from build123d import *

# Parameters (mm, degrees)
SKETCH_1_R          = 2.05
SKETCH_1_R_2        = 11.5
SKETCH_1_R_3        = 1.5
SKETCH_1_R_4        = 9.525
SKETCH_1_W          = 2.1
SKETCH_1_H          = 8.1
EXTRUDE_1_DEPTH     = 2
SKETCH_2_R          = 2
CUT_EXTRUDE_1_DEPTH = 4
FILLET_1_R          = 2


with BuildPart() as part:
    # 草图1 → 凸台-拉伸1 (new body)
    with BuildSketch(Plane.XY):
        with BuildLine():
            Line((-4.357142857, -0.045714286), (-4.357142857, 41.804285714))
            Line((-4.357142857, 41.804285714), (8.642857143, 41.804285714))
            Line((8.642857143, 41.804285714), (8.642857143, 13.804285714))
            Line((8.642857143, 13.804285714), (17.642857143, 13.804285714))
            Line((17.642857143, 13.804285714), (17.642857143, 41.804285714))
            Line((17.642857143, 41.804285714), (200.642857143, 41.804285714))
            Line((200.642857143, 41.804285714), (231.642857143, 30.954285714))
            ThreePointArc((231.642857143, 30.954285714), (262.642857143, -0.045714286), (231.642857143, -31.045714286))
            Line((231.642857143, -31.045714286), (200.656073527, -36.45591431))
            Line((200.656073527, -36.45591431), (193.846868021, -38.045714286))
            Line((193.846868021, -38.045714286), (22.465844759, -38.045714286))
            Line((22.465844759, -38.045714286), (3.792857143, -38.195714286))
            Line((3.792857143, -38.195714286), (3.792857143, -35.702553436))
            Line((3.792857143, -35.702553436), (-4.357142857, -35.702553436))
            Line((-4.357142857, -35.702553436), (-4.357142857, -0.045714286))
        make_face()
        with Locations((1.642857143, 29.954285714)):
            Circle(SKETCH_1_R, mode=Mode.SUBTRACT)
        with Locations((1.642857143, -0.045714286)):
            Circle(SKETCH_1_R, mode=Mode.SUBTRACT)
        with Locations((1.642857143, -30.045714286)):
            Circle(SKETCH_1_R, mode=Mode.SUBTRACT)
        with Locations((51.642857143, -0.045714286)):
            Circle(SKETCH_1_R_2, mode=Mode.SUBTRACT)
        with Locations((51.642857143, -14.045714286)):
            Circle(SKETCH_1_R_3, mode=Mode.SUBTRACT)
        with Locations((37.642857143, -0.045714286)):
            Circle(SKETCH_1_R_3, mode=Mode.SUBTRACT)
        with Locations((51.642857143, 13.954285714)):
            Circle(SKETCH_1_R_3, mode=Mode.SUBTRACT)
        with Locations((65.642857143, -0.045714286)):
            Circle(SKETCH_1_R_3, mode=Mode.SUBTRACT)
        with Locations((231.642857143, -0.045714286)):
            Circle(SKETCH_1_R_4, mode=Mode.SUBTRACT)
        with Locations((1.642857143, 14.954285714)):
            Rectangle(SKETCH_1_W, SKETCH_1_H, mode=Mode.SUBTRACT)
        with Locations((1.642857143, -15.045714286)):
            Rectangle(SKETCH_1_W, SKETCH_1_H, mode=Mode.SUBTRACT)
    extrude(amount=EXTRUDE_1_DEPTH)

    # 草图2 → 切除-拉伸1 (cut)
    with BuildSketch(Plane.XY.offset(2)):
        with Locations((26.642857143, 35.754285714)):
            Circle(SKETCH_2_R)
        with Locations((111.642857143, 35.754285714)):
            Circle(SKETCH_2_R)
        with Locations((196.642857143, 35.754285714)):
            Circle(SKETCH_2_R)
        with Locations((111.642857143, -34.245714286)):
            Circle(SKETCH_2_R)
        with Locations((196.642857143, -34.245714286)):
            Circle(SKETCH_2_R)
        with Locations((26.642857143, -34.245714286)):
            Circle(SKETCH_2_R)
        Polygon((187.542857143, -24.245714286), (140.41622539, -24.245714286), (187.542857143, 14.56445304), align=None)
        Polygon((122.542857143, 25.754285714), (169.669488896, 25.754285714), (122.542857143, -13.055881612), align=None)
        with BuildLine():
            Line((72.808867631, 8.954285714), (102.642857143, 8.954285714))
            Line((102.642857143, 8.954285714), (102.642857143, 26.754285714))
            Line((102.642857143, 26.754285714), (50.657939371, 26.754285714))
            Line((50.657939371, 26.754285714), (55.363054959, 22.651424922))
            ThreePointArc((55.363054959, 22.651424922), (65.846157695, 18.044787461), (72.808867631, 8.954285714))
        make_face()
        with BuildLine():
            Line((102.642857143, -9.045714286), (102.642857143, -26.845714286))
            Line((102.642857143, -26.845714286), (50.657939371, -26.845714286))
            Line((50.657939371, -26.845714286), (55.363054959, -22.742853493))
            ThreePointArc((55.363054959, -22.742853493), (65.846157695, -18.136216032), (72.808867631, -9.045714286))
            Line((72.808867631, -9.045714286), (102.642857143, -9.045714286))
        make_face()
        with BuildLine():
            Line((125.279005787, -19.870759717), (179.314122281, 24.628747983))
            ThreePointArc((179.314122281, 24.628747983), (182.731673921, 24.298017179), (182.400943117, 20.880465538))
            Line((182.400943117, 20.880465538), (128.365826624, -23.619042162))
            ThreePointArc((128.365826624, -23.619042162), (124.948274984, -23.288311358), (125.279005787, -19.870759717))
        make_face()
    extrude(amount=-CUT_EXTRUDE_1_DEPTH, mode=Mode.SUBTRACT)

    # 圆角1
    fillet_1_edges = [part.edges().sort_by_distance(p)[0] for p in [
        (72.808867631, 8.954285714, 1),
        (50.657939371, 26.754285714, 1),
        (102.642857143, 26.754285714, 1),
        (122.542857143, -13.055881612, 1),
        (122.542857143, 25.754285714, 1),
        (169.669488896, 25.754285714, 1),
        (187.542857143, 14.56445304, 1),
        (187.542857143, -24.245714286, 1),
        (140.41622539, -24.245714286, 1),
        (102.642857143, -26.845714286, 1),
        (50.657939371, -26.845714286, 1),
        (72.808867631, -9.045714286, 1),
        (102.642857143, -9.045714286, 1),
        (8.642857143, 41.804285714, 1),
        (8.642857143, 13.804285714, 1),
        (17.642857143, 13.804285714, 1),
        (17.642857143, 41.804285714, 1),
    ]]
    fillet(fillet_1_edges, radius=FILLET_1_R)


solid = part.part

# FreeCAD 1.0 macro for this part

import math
import FreeCAD as App
import Part
import Sketcher
from FreeCAD import Vector


def edges_at(feature, points):
    """Names of the edges that pass closest to the given points."""
    edges = feature.Shape.Edges
    near = lambda p: min(range(len(edges)), key=lambda i: edges[i].distToShape(Part.Vertex(*p))[0])
    return sorted({f"Edge{near(p) + 1}" for p in points})


def add_polygon(sketch, points):
    """Adds a closed chain of lines whose ends are joined by coincident constraints."""
    first, n = sketch.GeometryCount, len(points)
    for a, b in zip(points, points[1:] + points[:1]):
        sketch.addGeometry(Part.LineSegment(App.Vector(*a, 0), App.Vector(*b, 0)), False)
    for i in range(n):
        sketch.addConstraint(Sketcher.Constraint("Coincident", first + i, 2, first + (i + 1) % n, 1))

doc = App.newDocument("Part")
body = doc.addObject("PartDesign::Body", "Body")

# Sketch on XY plane
sketch1 = doc.addObject("Sketcher::SketchObject", "Sketch")
body.addObject(sketch1)
sketch1.AttachmentSupport = (doc.XY_Plane, [""])
sketch1.MapMode = "FlatFace"
sketch1.addGeometry(Part.LineSegment(Vector(8.6, 41.8, 0), Vector(-4.4, 41.8, 0)), False)  # 0
sketch1.addGeometry(Part.LineSegment(Vector(-4.4, 41.8, 0), Vector(-4.4, -35.7, 0)), False)  # 1
sketch1.addGeometry(Part.LineSegment(Vector(-4.4, -35.7, 0), Vector(3.8, -35.7, 0)), False)  # 2
sketch1.addGeometry(Part.LineSegment(Vector(3.8, -35.7, 0), Vector(3.8, -38.2, 0)), False)  # 3
sketch1.addGeometry(Part.LineSegment(Vector(3.8, -38.2, 0), Vector(22.5, -38, 0)), False)  # 4
sketch1.addGeometry(Part.LineSegment(Vector(22.5, -38, 0), Vector(193.8, -38, 0)), False)  # 5
sketch1.addGeometry(Part.LineSegment(Vector(193.8, -38, 0), Vector(200.7, -36.5, 0)), False)  # 6
sketch1.addGeometry(Part.LineSegment(Vector(200.7, -36.5, 0), Vector(231.6, -31, 0)), False)  # 7
sketch1.addGeometry(Part.ArcOfCircle(Part.Circle(Vector(231.6, 0, 0), Vector(0, 0, 1), 31), math.radians(-90), math.radians(90)), False)  # 8
sketch1.addGeometry(Part.LineSegment(Vector(231.6, 31, 0), Vector(200.6, 41.8, 0)), False)  # 9
sketch1.addGeometry(Part.LineSegment(Vector(200.6, 41.8, 0), Vector(17.6, 41.8, 0)), False)  # 10
sketch1.addGeometry(Part.LineSegment(Vector(17.6, 41.8, 0), Vector(17.6, 13.8, 0)), False)  # 11
sketch1.addGeometry(Part.LineSegment(Vector(17.6, 13.8, 0), Vector(8.6, 13.8, 0)), False)  # 12
sketch1.addGeometry(Part.LineSegment(Vector(8.6, 13.8, 0), Vector(8.6, 41.8, 0)), False)  # 13
sketch1.addGeometry(Part.Circle(Vector(1.6, -30, 0), Vector(0, 0, 1), 2), False)  # 14
sketch1.addGeometry(Part.Circle(Vector(51.6, -14, 0), Vector(0, 0, 1), 1.5), False)  # 15
add_polygon(sketch1, [(0.6, -19.1), (0.6, -11), (2.7, -11), (2.7, -19.1)])  # lines 16-19
sketch1.addGeometry(Part.Circle(Vector(231.6, 0, 0), Vector(0, 0, 1), 9.5), False)  # 20
sketch1.addGeometry(Part.Circle(Vector(65.6, 0, 0), Vector(0, 0, 1), 1.5), False)  # 21
sketch1.addGeometry(Part.Circle(Vector(51.6, 0, 0), Vector(0, 0, 1), 11.5), False)  # 22
sketch1.addGeometry(Part.Circle(Vector(37.6, 0, 0), Vector(0, 0, 1), 1.5), False)  # 23
sketch1.addGeometry(Part.Circle(Vector(1.6, 0, 0), Vector(0, 0, 1), 2), False)  # 24
sketch1.addGeometry(Part.Circle(Vector(51.6, 14, 0), Vector(0, 0, 1), 1.5), False)  # 25
add_polygon(sketch1, [(0.6, 10.9), (0.6, 19), (2.7, 19), (2.7, 10.9)])  # lines 26-29
sketch1.addGeometry(Part.Circle(Vector(1.6, 30, 0), Vector(0, 0, 1), 2), False)  # 30
sketch1.addConstraint(Sketcher.Constraint("Coincident", 0, 2, 1, 1))
sketch1.addConstraint(Sketcher.Constraint("Coincident", 1, 2, 2, 1))
sketch1.addConstraint(Sketcher.Constraint("Coincident", 2, 2, 3, 1))
sketch1.addConstraint(Sketcher.Constraint("Coincident", 3, 2, 4, 1))
sketch1.addConstraint(Sketcher.Constraint("Coincident", 4, 2, 5, 1))
sketch1.addConstraint(Sketcher.Constraint("Coincident", 5, 2, 6, 1))
sketch1.addConstraint(Sketcher.Constraint("Coincident", 6, 2, 7, 1))
sketch1.addConstraint(Sketcher.Constraint("Coincident", 7, 2, 8, 1))
sketch1.addConstraint(Sketcher.Constraint("Coincident", 8, 2, 9, 1))
sketch1.addConstraint(Sketcher.Constraint("Coincident", 9, 2, 10, 1))
sketch1.addConstraint(Sketcher.Constraint("Coincident", 10, 2, 11, 1))
sketch1.addConstraint(Sketcher.Constraint("Coincident", 11, 2, 12, 1))
sketch1.addConstraint(Sketcher.Constraint("Coincident", 12, 2, 13, 1))
sketch1.addConstraint(Sketcher.Constraint("Coincident", 13, 2, 0, 1))
sketch1.addConstraint(Sketcher.Constraint("Horizontal", 0))
sketch1.addConstraint(Sketcher.Constraint("Vertical", 1))
sketch1.addConstraint(Sketcher.Constraint("Horizontal", 2))
sketch1.addConstraint(Sketcher.Constraint("Vertical", 3))
sketch1.addConstraint(Sketcher.Constraint("Horizontal", 5))
sketch1.addConstraint(Sketcher.Constraint("Horizontal", 10))
sketch1.addConstraint(Sketcher.Constraint("Vertical", 11))
sketch1.addConstraint(Sketcher.Constraint("Horizontal", 12))
sketch1.addConstraint(Sketcher.Constraint("Vertical", 13))
sketch1.addConstraint(Sketcher.Constraint("Vertical", 16))
sketch1.addConstraint(Sketcher.Constraint("Horizontal", 17))
sketch1.addConstraint(Sketcher.Constraint("Vertical", 18))
sketch1.addConstraint(Sketcher.Constraint("Horizontal", 19))
sketch1.addConstraint(Sketcher.Constraint("Vertical", 26))
sketch1.addConstraint(Sketcher.Constraint("Horizontal", 27))
sketch1.addConstraint(Sketcher.Constraint("Vertical", 28))
sketch1.addConstraint(Sketcher.Constraint("Horizontal", 29))
sketch1.addConstraint(Sketcher.Constraint("Coincident", 20, 3, 8, 3))
sketch1.addConstraint(Sketcher.Constraint("Equal", 15, 21))
sketch1.addConstraint(Sketcher.Constraint("Equal", 21, 23))
sketch1.addConstraint(Sketcher.Constraint("Equal", 14, 24))
sketch1.addConstraint(Sketcher.Constraint("Equal", 23, 25))
sketch1.addConstraint(Sketcher.Constraint("Equal", 24, 30))
sketch1.addConstraint(Sketcher.Constraint("Horizontal", 20, 3, 21, 3))
sketch1.addConstraint(Sketcher.Constraint("Horizontal", 21, 3, 22, 3))
sketch1.addConstraint(Sketcher.Constraint("Horizontal", 22, 3, 23, 3))
sketch1.addConstraint(Sketcher.Constraint("Horizontal", 23, 3, 24, 3))
sketch1.addConstraint(Sketcher.Constraint("Horizontal", 0, 2, 9, 2))
sketch1.addConstraint(Sketcher.Constraint("Vertical", 15, 3, 22, 3))
sketch1.addConstraint(Sketcher.Constraint("Vertical", 14, 3, 24, 3))
sketch1.addConstraint(Sketcher.Constraint("Vertical", 22, 3, 25, 3))
sketch1.addConstraint(Sketcher.Constraint("Vertical", 24, 3, 30, 3))
sketch1.addConstraint(Sketcher.Constraint("Vertical", 20, 3, 7, 2))
sketch1.addConstraint(Sketcher.Constraint("Vertical", 7, 2, 8, 2))
sketch1.addConstraint(Sketcher.Constraint("Vertical", 19, 2, 26, 2))
sketch1.addConstraint(Sketcher.Constraint("Vertical", 18, 2, 27, 2))
sketch1.addConstraint(Sketcher.Constraint("Equal", 18, 26))
sketch1.addConstraint(Sketcher.Constraint("Diameter", 15, 3.0))
sketch1.addConstraint(Sketcher.Constraint("Diameter", 22, 23.0))
sketch1.addConstraint(Sketcher.Constraint("Radius", 8, 31.0))
sketch1.addConstraint(Sketcher.Constraint("Diameter", 14, 4.1))
sketch1.addConstraint(Sketcher.Constraint("Diameter", 20, 19.05))
sketch1.addConstraint(Sketcher.Constraint("DistanceX", 0, 2, 0, 1, 13.0))
sketch1.addConstraint(Sketcher.Constraint("DistanceX", 10, 2, 10, 1, 183.0))
sketch1.addConstraint(Sketcher.Constraint("DistanceX", 12, 2, 12, 1, 9.0))
sketch1.addConstraint(Sketcher.Constraint("DistanceY", 11, 2, 11, 1, 28.0))
sketch1.addConstraint(Sketcher.Constraint("DistanceX", 17, 1, 17, 2, 2.1))
sketch1.addConstraint(Sketcher.Constraint("DistanceY", 16, 1, 16, 2, 8.1))
sketch1.addConstraint(Sketcher.Constraint("DistanceX", 14, 3, 8, 3, 230.0))
sketch1.addConstraint(Sketcher.Constraint("DistanceY", 14, 3, 8, 3, 30.0))
sketch1.addConstraint(Sketcher.Constraint("DistanceX", 14, 3, 15, 3, 50.0))
sketch1.addConstraint(Sketcher.Constraint("DistanceY", 14, 3, 15, 3, 16.0))
sketch1.addConstraint(Sketcher.Constraint("DistanceX", 15, 3, 21, 3, 14.0))
sketch1.addConstraint(Sketcher.Constraint("DistanceX", 23, 3, 22, 3, 14.0))
sketch1.addConstraint(Sketcher.Constraint("DistanceY", 22, 3, 25, 3, 14.0))
sketch1.addConstraint(Sketcher.Constraint("DistanceY", 24, 3, 30, 3, 30.0))
sketch1.addConstraint(Sketcher.Constraint("DistanceX", 0, 2, 30, 3, 6.0))
sketch1.addConstraint(Sketcher.Constraint("DistanceY", 4, 2, 14, 3, 8.0))
sketch1.addConstraint(Sketcher.Constraint("DistanceX", 2, 1, 2, 2, 8.15))
sketch1.addConstraint(Sketcher.Constraint("DistanceX", 16, 2, 2, 2, 3.2))
sketch1.addConstraint(Sketcher.Constraint("DistanceY", 16, 2, 12, 2, 24.8))
sketch1.addConstraint(Sketcher.Constraint("DistanceY", 12, 2, 26, 2, 5.2))
sketch1.addConstraint(Sketcher.Constraint("DistanceY", 30, 3, 0, 2, 11.85))
sketch1.addConstraint(Sketcher.Constraint("DistanceY", 3, 2, 14, 3, 8.15))
sketch1.addConstraint(Sketcher.Constraint("DistanceY", 1, 2, 1, 1, 77.506839))
sketch1.addConstraint(Sketcher.Constraint("DistanceY", 5, 2, 6, 2, 1.5898))
sketch1.addConstraint(Sketcher.Constraint("Distance", 4, 18.67359))
sketch1.addConstraint(Sketcher.Constraint("Distance", 7, 31.45554))
sketch1.addConstraint(Sketcher.Constraint("DistanceX", 5, 1, 5, 2, 171.381023))
sketch1.addConstraint(Sketcher.Constraint("DistanceX", -1, 1, 5, 2, 193.846868))
sketch1.addConstraint(Sketcher.Constraint("DistanceY", 8, 3, -1, 1, 0.045714))
pad1 = doc.addObject("PartDesign::Pad", "Pad")
body.addObject(pad1)
pad1.Profile = sketch1
pad1.Length = 2

# Sketch on XY plane
sketch2 = doc.addObject("Sketcher::SketchObject", "Sketch001")
body.addObject(sketch2)
sketch2.AttachmentSupport = (doc.XY_Plane, [""])
sketch2.MapMode = "FlatFace"
sketch2.AttachmentOffset = App.Placement(Vector(0, 0, 2), App.Rotation())
sketch2.addGeometry(Part.Circle(Vector(26.6, 35.8, 0), Vector(0, 0, 1), 2), False)  # 0
sketch2.addGeometry(Part.Circle(Vector(111.6, 35.8, 0), Vector(0, 0, 1), 2), False)  # 1
sketch2.addGeometry(Part.Circle(Vector(196.6, 35.8, 0), Vector(0, 0, 1), 2), False)  # 2
sketch2.addGeometry(Part.Circle(Vector(111.6, -34.2, 0), Vector(0, 0, 1), 2), False)  # 3
sketch2.addGeometry(Part.Circle(Vector(196.6, -34.2, 0), Vector(0, 0, 1), 2), False)  # 4
sketch2.addGeometry(Part.Circle(Vector(26.6, -34.2, 0), Vector(0, 0, 1), 2), False)  # 5
add_polygon(sketch2, [(140.4, -24.2), (187.5, -24.2), (187.5, 14.6)])  # lines 6-8
add_polygon(sketch2, [(169.7, 25.8), (122.5, 25.8), (122.5, -13.1)])  # lines 9-11
sketch2.addGeometry(Part.LineSegment(Vector(72.8, 9, 0), Vector(102.6, 9, 0)), False)  # 12
sketch2.addGeometry(Part.LineSegment(Vector(102.6, 9, 0), Vector(102.6, 26.8, 0)), False)  # 13
sketch2.addGeometry(Part.LineSegment(Vector(102.6, 26.8, 0), Vector(50.7, 26.8, 0)), False)  # 14
sketch2.addGeometry(Part.LineSegment(Vector(50.7, 26.8, 0), Vector(55.4, 22.7, 0)), False)  # 15
sketch2.addGeometry(Part.ArcOfCircle(Part.Circle(Vector(51.6, 0, 0), Vector(0, 0, 1), 23), math.radians(23), math.radians(81)), False)  # 16
sketch2.addGeometry(Part.LineSegment(Vector(102.6, -26.8, 0), Vector(102.6, -9, 0)), False)  # 17
sketch2.addGeometry(Part.LineSegment(Vector(102.6, -9, 0), Vector(72.8, -9, 0)), False)  # 18
sketch2.addGeometry(Part.ArcOfCircle(Part.Circle(Vector(51.6, 0, 0), Vector(0, 0, 1), 23), math.radians(-81), math.radians(-23)), False)  # 19
sketch2.addGeometry(Part.LineSegment(Vector(55.4, -22.7, 0), Vector(50.7, -26.8, 0)), False)  # 20
sketch2.addGeometry(Part.LineSegment(Vector(50.7, -26.8, 0), Vector(102.6, -26.8, 0)), False)  # 21
sketch2.addGeometry(Part.LineSegment(Vector(179.3, 24.6, 0), Vector(125.3, -19.9, 0)), False)  # 22
sketch2.addGeometry(Part.ArcOfCircle(Part.Circle(Vector(126.8, -21.7, 0), Vector(0, 0, 1), 2.4), math.radians(129), math.radians(309)), False)  # 23
sketch2.addGeometry(Part.LineSegment(Vector(128.4, -23.6, 0), Vector(182.4, 20.9, 0)), False)  # 24
sketch2.addGeometry(Part.ArcOfCircle(Part.Circle(Vector(180.9, 22.8, 0), Vector(0, 0, 1), 2.4), math.radians(-51), math.radians(129)), False)  # 25
sketch2.addConstraint(Sketcher.Constraint("Coincident", 12, 2, 13, 1))
sketch2.addConstraint(Sketcher.Constraint("Coincident", 13, 2, 14, 1))
sketch2.addConstraint(Sketcher.Constraint("Coincident", 14, 2, 15, 1))
sketch2.addConstraint(Sketcher.Constraint("Coincident", 15, 2, 16, 2))
sketch2.addConstraint(Sketcher.Constraint("Coincident", 16, 1, 12, 1))
sketch2.addConstraint(Sketcher.Constraint("Coincident", 17, 2, 18, 1))
sketch2.addConstraint(Sketcher.Constraint("Coincident", 18, 2, 19, 2))
sketch2.addConstraint(Sketcher.Constraint("Coincident", 19, 1, 20, 1))
sketch2.addConstraint(Sketcher.Constraint("Coincident", 20, 2, 21, 1))
sketch2.addConstraint(Sketcher.Constraint("Coincident", 21, 2, 17, 1))
sketch2.addConstraint(Sketcher.Constraint("Tangent", 22, 2, 23, 1))
sketch2.addConstraint(Sketcher.Constraint("Tangent", 23, 2, 24, 1))
sketch2.addConstraint(Sketcher.Constraint("Tangent", 24, 2, 25, 1))
sketch2.addConstraint(Sketcher.Constraint("Tangent", 25, 2, 22, 1))
sketch2.addConstraint(Sketcher.Constraint("Horizontal", 6))
sketch2.addConstraint(Sketcher.Constraint("Vertical", 7))
sketch2.addConstraint(Sketcher.Constraint("Horizontal", 9))
sketch2.addConstraint(Sketcher.Constraint("Vertical", 10))
sketch2.addConstraint(Sketcher.Constraint("Horizontal", 12))
sketch2.addConstraint(Sketcher.Constraint("Vertical", 13))
sketch2.addConstraint(Sketcher.Constraint("Horizontal", 14))
sketch2.addConstraint(Sketcher.Constraint("Vertical", 17))
sketch2.addConstraint(Sketcher.Constraint("Horizontal", 18))
sketch2.addConstraint(Sketcher.Constraint("Horizontal", 21))
sketch2.addConstraint(Sketcher.Constraint("Coincident", 19, 3, 16, 3))
sketch2.addConstraint(Sketcher.Constraint("Equal", 0, 1))
sketch2.addConstraint(Sketcher.Constraint("Equal", 1, 2))
sketch2.addConstraint(Sketcher.Constraint("Equal", 2, 3))
sketch2.addConstraint(Sketcher.Constraint("Equal", 3, 4))
sketch2.addConstraint(Sketcher.Constraint("Equal", 4, 5))
sketch2.addConstraint(Sketcher.Constraint("Equal", 16, 19))
sketch2.addConstraint(Sketcher.Constraint("Equal", 23, 25))
sketch2.addConstraint(Sketcher.Constraint("Parallel", 8, 11))
sketch2.addConstraint(Sketcher.Constraint("Parallel", 11, 22))
sketch2.addConstraint(Sketcher.Constraint("Horizontal", 0, 3, 1, 3))
sketch2.addConstraint(Sketcher.Constraint("Horizontal", 1, 3, 2, 3))
sketch2.addConstraint(Sketcher.Constraint("Horizontal", 3, 3, 4, 3))
sketch2.addConstraint(Sketcher.Constraint("Horizontal", 4, 3, 5, 3))
sketch2.addConstraint(Sketcher.Constraint("Vertical", 1, 3, 3, 3))
sketch2.addConstraint(Sketcher.Constraint("Vertical", 2, 3, 4, 3))
sketch2.addConstraint(Sketcher.Constraint("Vertical", 0, 3, 5, 3))
sketch2.addConstraint(Sketcher.Constraint("Vertical", 13, 2, 17, 2))
sketch2.addConstraint(Sketcher.Constraint("Vertical", 16, 1, 18, 2))
sketch2.addConstraint(Sketcher.Constraint("Vertical", 15, 2, 19, 1))
sketch2.addConstraint(Sketcher.Constraint("Vertical", 14, 2, 20, 2))
sketch2.addConstraint(Sketcher.Constraint("Equal", 6, 9))
sketch2.addConstraint(Sketcher.Constraint("Equal", 13, 17))
sketch2.addConstraint(Sketcher.Constraint("Diameter", 0, 4.0))
sketch2.addConstraint(Sketcher.Constraint("Radius", 16, 23.0))
sketch2.addConstraint(Sketcher.Constraint("Distance", 22, 70.0))
sketch2.addConstraint(Sketcher.Constraint("DistanceY", 13, 1, 13, 2, 17.8))
sketch2.addConstraint(Sketcher.Constraint("DistanceX", 0, 3, 1, 3, 85.0))
sketch2.addConstraint(Sketcher.Constraint("DistanceX", 1, 3, 2, 3, 85.0))
sketch2.addConstraint(Sketcher.Constraint("DistanceY", 3, 3, 1, 3, 70.0))
sketch2.addConstraint(Sketcher.Constraint("DistanceX", 5, 3, 16, 3, 25.0))
sketch2.addConstraint(Sketcher.Constraint("DistanceY", 4, 3, 6, 2, 10.0))
sketch2.addConstraint(Sketcher.Constraint("DistanceY", 9, 2, 1, 3, 10.0))
sketch2.addConstraint(Sketcher.Constraint("DistanceX", 12, 2, 1, 3, 9.0))
sketch2.addConstraint(Sketcher.Constraint("DistanceY", 13, 2, 1, 3, 9.0))
sketch2.addConstraint(Sketcher.Constraint("DistanceY", 16, 3, 16, 1, 9.0))
sketch2.addConstraint(Sketcher.Constraint("DistanceX", 6, 2, 4, 3, 9.1))
sketch2.addConstraint(Sketcher.Constraint("DistanceX", 1, 3, 9, 2, 10.9))
sketch2.addConstraint(Sketcher.Constraint("Radius", 23, 2.427863))
sketch2.addConstraint(Sketcher.Constraint("DistanceX", 6, 1, 6, 2, 47.126632))
sketch2.addConstraint(Sketcher.Constraint("DistanceY", 23, 3, -1, 1, 21.744901))
sketch2.addConstraint(Sketcher.Constraint("DistanceX", 23, 2, 8, 2, 12.050399))
sketch2.addConstraint(Sketcher.Constraint("DistanceX", 14, 2, 14, 1, 51.984918))
sketch2.addConstraint(Sketcher.Constraint("DistanceY", 7, 1, 7, 2, 38.810167))
sketch2.addConstraint(Sketcher.Constraint("DistanceY", 10, 2, -1, 1, 13.055882))
sketch2.addConstraint(Sketcher.Constraint("DistanceX", -1, 1, 11, 2, 169.669489))
sketch2.addConstraint(Sketcher.Constraint("DistanceY", 15, 2, 14, 2, 4.102861))
pocket1 = doc.addObject("PartDesign::Pocket", "Pocket")
body.addObject(pocket1)
pocket1.Profile = sketch2
pocket1.Length = 4
doc.recompute()

fillet = doc.addObject("PartDesign::Fillet", "Fillet")
body.addObject(fillet)
fillet.Base = (pocket1, edges_at(pocket1, [
    (72.809, 8.954, 1),
    (50.658, 26.754, 1),
    (102.643, 26.754, 1),
    (122.543, -13.056, 1),
    (122.543, 25.754, 1),
    (169.669, 25.754, 1),
    (187.543, 14.564, 1),
    (187.543, -24.246, 1),
    (140.416, -24.246, 1),
    (102.643, -26.846, 1),
    (50.658, -26.846, 1),
    (72.809, -9.046, 1),
    (102.643, -9.046, 1),
    (8.643, 41.804, 1),
    (8.643, 13.804, 1),
    (17.643, 13.804, 1),
    (17.643, 41.804, 1),
]))
fillet.Radius = 2

doc.recompute()
